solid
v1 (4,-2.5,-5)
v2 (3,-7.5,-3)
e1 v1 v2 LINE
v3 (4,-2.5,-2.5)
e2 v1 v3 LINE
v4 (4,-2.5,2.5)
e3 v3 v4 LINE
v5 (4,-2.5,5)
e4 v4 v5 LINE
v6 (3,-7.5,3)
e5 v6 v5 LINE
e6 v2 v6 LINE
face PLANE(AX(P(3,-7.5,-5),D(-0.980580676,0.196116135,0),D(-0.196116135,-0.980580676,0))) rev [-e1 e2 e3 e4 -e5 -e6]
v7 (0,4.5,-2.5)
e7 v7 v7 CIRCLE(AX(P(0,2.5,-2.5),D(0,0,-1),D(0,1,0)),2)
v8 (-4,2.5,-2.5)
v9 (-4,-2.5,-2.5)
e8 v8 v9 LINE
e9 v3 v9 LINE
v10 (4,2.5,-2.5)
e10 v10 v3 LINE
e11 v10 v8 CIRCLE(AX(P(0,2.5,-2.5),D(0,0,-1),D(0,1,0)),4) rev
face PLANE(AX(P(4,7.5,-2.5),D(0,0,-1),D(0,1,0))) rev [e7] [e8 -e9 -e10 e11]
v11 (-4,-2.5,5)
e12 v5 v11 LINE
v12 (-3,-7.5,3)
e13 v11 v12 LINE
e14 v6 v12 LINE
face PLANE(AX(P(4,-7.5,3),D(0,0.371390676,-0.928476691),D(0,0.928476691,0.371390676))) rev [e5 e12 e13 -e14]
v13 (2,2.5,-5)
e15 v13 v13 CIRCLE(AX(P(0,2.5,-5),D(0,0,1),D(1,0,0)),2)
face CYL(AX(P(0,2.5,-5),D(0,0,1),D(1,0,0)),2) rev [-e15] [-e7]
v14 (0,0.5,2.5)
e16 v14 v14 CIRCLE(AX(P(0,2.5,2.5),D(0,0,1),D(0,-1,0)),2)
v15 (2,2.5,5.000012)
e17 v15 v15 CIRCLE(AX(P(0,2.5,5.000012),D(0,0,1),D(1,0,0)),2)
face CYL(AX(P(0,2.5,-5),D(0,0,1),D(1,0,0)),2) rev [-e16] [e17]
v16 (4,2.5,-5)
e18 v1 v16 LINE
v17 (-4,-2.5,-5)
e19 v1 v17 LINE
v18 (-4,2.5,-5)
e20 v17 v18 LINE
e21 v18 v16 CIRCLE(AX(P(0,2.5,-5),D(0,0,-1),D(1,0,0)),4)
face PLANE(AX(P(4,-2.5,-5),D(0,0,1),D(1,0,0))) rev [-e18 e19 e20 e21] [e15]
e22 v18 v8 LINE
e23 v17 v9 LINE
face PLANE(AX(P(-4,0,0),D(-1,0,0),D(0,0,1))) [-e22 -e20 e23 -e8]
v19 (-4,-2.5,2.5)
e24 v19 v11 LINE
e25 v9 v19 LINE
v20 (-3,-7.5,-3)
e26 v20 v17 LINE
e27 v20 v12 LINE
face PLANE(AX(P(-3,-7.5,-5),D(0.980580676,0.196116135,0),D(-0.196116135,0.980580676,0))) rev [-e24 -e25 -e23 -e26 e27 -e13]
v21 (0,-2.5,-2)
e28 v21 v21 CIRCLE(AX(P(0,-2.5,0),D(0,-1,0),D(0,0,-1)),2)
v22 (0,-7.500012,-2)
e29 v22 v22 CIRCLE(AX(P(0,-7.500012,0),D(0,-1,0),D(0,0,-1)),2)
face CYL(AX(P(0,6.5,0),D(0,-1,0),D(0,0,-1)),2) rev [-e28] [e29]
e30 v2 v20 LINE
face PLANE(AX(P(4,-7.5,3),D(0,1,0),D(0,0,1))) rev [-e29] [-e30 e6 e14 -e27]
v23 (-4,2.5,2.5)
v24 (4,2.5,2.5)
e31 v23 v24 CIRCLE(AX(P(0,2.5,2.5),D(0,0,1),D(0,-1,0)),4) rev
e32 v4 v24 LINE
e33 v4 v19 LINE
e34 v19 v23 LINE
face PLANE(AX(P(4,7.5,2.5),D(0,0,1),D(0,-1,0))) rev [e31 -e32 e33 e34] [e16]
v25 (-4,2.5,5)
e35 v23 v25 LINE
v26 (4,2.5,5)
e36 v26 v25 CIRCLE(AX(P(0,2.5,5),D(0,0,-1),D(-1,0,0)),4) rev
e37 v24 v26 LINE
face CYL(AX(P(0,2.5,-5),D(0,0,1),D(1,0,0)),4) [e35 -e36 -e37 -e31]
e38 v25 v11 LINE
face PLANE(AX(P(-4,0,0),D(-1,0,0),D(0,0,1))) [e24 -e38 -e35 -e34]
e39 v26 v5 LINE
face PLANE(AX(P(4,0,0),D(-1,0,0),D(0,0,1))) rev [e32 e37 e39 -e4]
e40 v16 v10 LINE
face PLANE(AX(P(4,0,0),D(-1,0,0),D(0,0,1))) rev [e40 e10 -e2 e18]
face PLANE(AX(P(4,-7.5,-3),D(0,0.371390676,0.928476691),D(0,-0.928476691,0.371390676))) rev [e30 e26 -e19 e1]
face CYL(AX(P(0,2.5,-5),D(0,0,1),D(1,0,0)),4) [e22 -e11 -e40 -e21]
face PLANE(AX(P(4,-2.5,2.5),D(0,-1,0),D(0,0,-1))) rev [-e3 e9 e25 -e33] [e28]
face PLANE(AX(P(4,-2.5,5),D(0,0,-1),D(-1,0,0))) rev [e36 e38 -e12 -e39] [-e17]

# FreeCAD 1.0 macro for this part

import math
import FreeCAD as App
import Part
import Sketcher

doc = App.newDocument("Part")
body = doc.addObject("PartDesign::Body", "Body")

# Sketch on YZ plane
sketch1 = doc.addObject("Sketcher::SketchObject", "Sketch")
body.addObject(sketch1)
sketch1.AttachmentSupport = (doc.YZ_Plane, [""])
sketch1.MapMode = "FlatFace"
sketch1.addGeometry(Part.LineSegment(App.Vector(7.5, -5, 0), App.Vector(7.5, -2.5, 0)), False)
sketch1.addGeometry(Part.LineSegment(App.Vector(7.5, -2.5, 0), App.Vector(-2.5, -2.5, 0)), False)
sketch1.addGeometry(Part.LineSegment(App.Vector(-2.5, -2.5, 0), App.Vector(-2.5, 2.5, 0)), False)
sketch1.addGeometry(Part.LineSegment(App.Vector(-2.5, 2.5, 0), App.Vector(7.5, 2.5, 0)), False)
sketch1.addGeometry(Part.LineSegment(App.Vector(7.5, 2.5, 0), App.Vector(7.5, 5, 0)), False)
sketch1.addGeometry(Part.LineSegment(App.Vector(7.5, 5, 0), App.Vector(-2.5, 5, 0)), False)
sketch1.addGeometry(Part.LineSegment(App.Vector(-2.5, 5, 0), App.Vector(-7.5, 3, 0)), False)
sketch1.addGeometry(Part.LineSegment(App.Vector(-7.5, 3, 0), App.Vector(-7.5, -3, 0)), False)
sketch1.addGeometry(Part.LineSegment(App.Vector(-7.5, -3, 0), App.Vector(-2.5, -5, 0)), False)
sketch1.addGeometry(Part.LineSegment(App.Vector(-2.5, -5, 0), App.Vector(7.5, -5, 0)), False)
sketch1.addConstraint(Sketcher.Constraint("Coincident", 0, 2, 1, 1))
sketch1.addConstraint(Sketcher.Constraint("Coincident", 1, 2, 2, 1))
sketch1.addConstraint(Sketcher.Constraint("Coincident", 2, 2, 3, 1))
sketch1.addConstraint(Sketcher.Constraint("Coincident", 3, 2, 4, 1))
sketch1.addConstraint(Sketcher.Constraint("Coincident", 4, 2, 5, 1))
sketch1.addConstraint(Sketcher.Constraint("Coincident", 5, 2, 6, 1))
sketch1.addConstraint(Sketcher.Constraint("Coincident", 6, 2, 7, 1))
sketch1.addConstraint(Sketcher.Constraint("Coincident", 7, 2, 8, 1))
sketch1.addConstraint(Sketcher.Constraint("Coincident", 8, 2, 9, 1))
sketch1.addConstraint(Sketcher.Constraint("Coincident", 9, 2, 0, 1))
sketch1.addConstraint(Sketcher.Constraint("Vertical", 0))
sketch1.addConstraint(Sketcher.Constraint("Horizontal", 1))
sketch1.addConstraint(Sketcher.Constraint("Vertical", 2))
sketch1.addConstraint(Sketcher.Constraint("Horizontal", 3))
sketch1.addConstraint(Sketcher.Constraint("Vertical", 4))
sketch1.addConstraint(Sketcher.Constraint("Horizontal", 5))
sketch1.addConstraint(Sketcher.Constraint("Vertical", 7))
sketch1.addConstraint(Sketcher.Constraint("Horizontal", 9))
sketch1.addConstraint(Sketcher.Constraint("Symmetric", 0, 2, 3, 2, -1))
sketch1.addConstraint(Sketcher.Constraint("Symmetric", 5, 2, 8, 2, -1))
sketch1.addConstraint(Sketcher.Constraint("Vertical", 2, 2, 5, 2))
sketch1.addConstraint(Sketcher.Constraint("Equal", 6, 8))
sketch1.addConstraint(Sketcher.Constraint("DistanceX", 1, 2, 1, 1, 10.0))
sketch1.addConstraint(Sketcher.Constraint("DistanceY", 2, 1, 2, 2, 5.0))
sketch1.addConstraint(Sketcher.Constraint("DistanceY", 7, 2, 7, 1, 6.0))
sketch1.addConstraint(Sketcher.Constraint("DistanceY", 0, 1, 0, 2, 2.5))
sketch1.addConstraint(Sketcher.Constraint("DistanceX", 6, 2, 2, 2, 5.0))
sketch1.addConstraint(Sketcher.Constraint("DistanceX", -1, 1, 0, 2, 7.5))
pad1 = doc.addObject("PartDesign::Pad", "Pad")
body.addObject(pad1)
pad1.Profile = sketch1
pad1.Length = 8
pad1.Midplane = True

# Sketch on XY plane
sketch2 = doc.addObject("Sketcher::SketchObject", "Sketch001")
body.addObject(sketch2)
sketch2.AttachmentSupport = (doc.XY_Plane, [""])
sketch2.MapMode = "FlatFace"
sketch2.AttachmentOffset = App.Placement(App.Vector(0, 0, 5), App.Rotation())
sketch2.addGeometry(Part.Circle(App.Vector(0, 2.5, 0), App.Vector(0, 0, 1), 2), False)
sketch2.addConstraint(Sketcher.Constraint("PointOnObject", 0, 3, -2))
sketch2.addConstraint(Sketcher.Constraint("Diameter", 0, 4.0))
sketch2.addConstraint(Sketcher.Constraint("DistanceY", -1, 1, 0, 3, 2.5))
pocket1 = doc.addObject("PartDesign::Pocket", "Pocket")
body.addObject(pocket1)
pocket1.Profile = sketch2
pocket1.Type = "ThroughAll"
pocket1.Midplane = True

# Sketch on XY plane
sketch3 = doc.addObject("Sketcher::SketchObject", "Sketch002")
body.addObject(sketch3)
sketch3.AttachmentSupport = (doc.XY_Plane, [""])
sketch3.MapMode = "FlatFace"
sketch3.AttachmentOffset = App.Placement(App.Vector(0, 0, 5), App.Rotation())
sketch3.addGeometry(Part.LineSegment(App.Vector(-4, 7.5, 0), App.Vector(-4, 2.5, 0)), False)
sketch3.addGeometry(Part.ArcOfCircle(Part.Circle(App.Vector(0, 2.5, 0), App.Vector(0, 0, 1), 4), math.radians(0), math.radians(180)), False)
sketch3.addGeometry(Part.LineSegment(App.Vector(4, 2.5, 0), App.Vector(4, 7.5, 0)), False)
sketch3.addGeometry(Part.LineSegment(App.Vector(4, 7.5, 0), App.Vector(-4, 7.5, 0)), False)
sketch3.addConstraint(Sketcher.Constraint("Tangent", 0, 2, 1, 2))
sketch3.addConstraint(Sketcher.Constraint("Tangent", 1, 1, 2, 1))
sketch3.addConstraint(Sketcher.Constraint("Coincident", 2, 2, 3, 1))
sketch3.addConstraint(Sketcher.Constraint("Coincident", 3, 2, 0, 1))
sketch3.addConstraint(Sketcher.Constraint("Vertical", 0))
sketch3.addConstraint(Sketcher.Constraint("Vertical", 2))
sketch3.addConstraint(Sketcher.Constraint("Horizontal", 3))
sketch3.addConstraint(Sketcher.Constraint("PointOnObject", 1, 3, -2))
sketch3.addConstraint(Sketcher.Constraint("Radius", 1, 4.0))
sketch3.addConstraint(Sketcher.Constraint("DistanceY", 0, 2, 0, 1, 5.0))
sketch3.addConstraint(Sketcher.Constraint("DistanceY", -1, 1, 1, 3, 2.5))
pocket2 = doc.addObject("PartDesign::Pocket", "Pocket001")
body.addObject(pocket2)
pocket2.Profile = sketch3
pocket2.Type = "ThroughAll"
pocket2.Midplane = True

# Sketch on XY plane
sketch4 = doc.addObject("Sketcher::SketchObject", "Sketch003")
body.addObject(sketch4)
sketch4.AttachmentSupport = (doc.XY_Plane, [""])
sketch4.MapMode = "FlatFace"
sketch4.addGeometry(Part.LineSegment(App.Vector(-4, -2.5, 0), App.Vector(-4, -7.5, 0)), False)
sketch4.addGeometry(Part.LineSegment(App.Vector(-4, -7.5, 0), App.Vector(-3, -7.5, 0)), False)
sketch4.addGeometry(Part.LineSegment(App.Vector(-3, -7.5, 0), App.Vector(-4, -2.5, 0)), False)
sketch4.addGeometry(Part.LineSegment(App.Vector(4, -2.5, 0), App.Vector(3, -7.5, 0)), False)
sketch4.addGeometry(Part.LineSegment(App.Vector(3, -7.5, 0), App.Vector(4, -7.5, 0)), False)
sketch4.addGeometry(Part.LineSegment(App.Vector(4, -7.5, 0), App.Vector(4, -2.5, 0)), False)
sketch4.addConstraint(Sketcher.Constraint("Coincident", 0, 2, 1, 1))
sketch4.addConstraint(Sketcher.Constraint("Coincident", 1, 2, 2, 1))
sketch4.addConstraint(Sketcher.Constraint("Coincident", 2, 2, 0, 1))
sketch4.addConstraint(Sketcher.Constraint("Coincident", 3, 2, 4, 1))
sketch4.addConstraint(Sketcher.Constraint("Coincident", 4, 2, 5, 1))
sketch4.addConstraint(Sketcher.Constraint("Coincident", 5, 2, 3, 1))
sketch4.addConstraint(Sketcher.Constraint("Vertical", 0))
sketch4.addConstraint(Sketcher.Constraint("Horizontal", 1))
sketch4.addConstraint(Sketcher.Constraint("Horizontal", 4))
sketch4.addConstraint(Sketcher.Constraint("Vertical", 5))
sketch4.addConstraint(Sketcher.Constraint("Symmetric", 1, 2, 3, 2, -2))
sketch4.addConstraint(Sketcher.Constraint("Symmetric", 2, 2, 5, 2, -2))
sketch4.addConstraint(Sketcher.Constraint("DistanceX", 1, 1, 1, 2, 1.0))
sketch4.addConstraint(Sketcher.Constraint("DistanceY", 0, 2, 0, 1, 5.0))
sketch4.addConstraint(Sketcher.Constraint("DistanceX", 0, 2, -1, 1, 4.0))
sketch4.addConstraint(Sketcher.Constraint("DistanceY", 0, 2, -1, 1, 7.5))
pocket3 = doc.addObject("PartDesign::Pocket", "Pocket002")
body.addObject(pocket3)
pocket3.Profile = sketch4
pocket3.Type = "ThroughAll"
pocket3.Midplane = True

# Sketch on XZ plane
sketch5 = doc.addObject("Sketcher::SketchObject", "Sketch004")
body.addObject(sketch5)
sketch5.AttachmentSupport = (doc.XZ_Plane, [""])
sketch5.MapMode = "FlatFace"
sketch5.AttachmentOffset = App.Placement(App.Vector(0, 0, 7.5), App.Rotation())
sketch5.addGeometry(Part.Circle(App.Vector(0, 0, 0), App.Vector(0, 0, 1), 2), False)
sketch5.addConstraint(Sketcher.Constraint("Coincident", 0, 3, -1, 1))
sketch5.addConstraint(Sketcher.Constraint("Diameter", 0, 4.0))
pocket4 = doc.addObject("PartDesign::Pocket", "Pocket003")
body.addObject(pocket4)
pocket4.Profile = sketch5
pocket4.Type = "ThroughAll"
pocket4.Midplane = True

doc.recompute()
